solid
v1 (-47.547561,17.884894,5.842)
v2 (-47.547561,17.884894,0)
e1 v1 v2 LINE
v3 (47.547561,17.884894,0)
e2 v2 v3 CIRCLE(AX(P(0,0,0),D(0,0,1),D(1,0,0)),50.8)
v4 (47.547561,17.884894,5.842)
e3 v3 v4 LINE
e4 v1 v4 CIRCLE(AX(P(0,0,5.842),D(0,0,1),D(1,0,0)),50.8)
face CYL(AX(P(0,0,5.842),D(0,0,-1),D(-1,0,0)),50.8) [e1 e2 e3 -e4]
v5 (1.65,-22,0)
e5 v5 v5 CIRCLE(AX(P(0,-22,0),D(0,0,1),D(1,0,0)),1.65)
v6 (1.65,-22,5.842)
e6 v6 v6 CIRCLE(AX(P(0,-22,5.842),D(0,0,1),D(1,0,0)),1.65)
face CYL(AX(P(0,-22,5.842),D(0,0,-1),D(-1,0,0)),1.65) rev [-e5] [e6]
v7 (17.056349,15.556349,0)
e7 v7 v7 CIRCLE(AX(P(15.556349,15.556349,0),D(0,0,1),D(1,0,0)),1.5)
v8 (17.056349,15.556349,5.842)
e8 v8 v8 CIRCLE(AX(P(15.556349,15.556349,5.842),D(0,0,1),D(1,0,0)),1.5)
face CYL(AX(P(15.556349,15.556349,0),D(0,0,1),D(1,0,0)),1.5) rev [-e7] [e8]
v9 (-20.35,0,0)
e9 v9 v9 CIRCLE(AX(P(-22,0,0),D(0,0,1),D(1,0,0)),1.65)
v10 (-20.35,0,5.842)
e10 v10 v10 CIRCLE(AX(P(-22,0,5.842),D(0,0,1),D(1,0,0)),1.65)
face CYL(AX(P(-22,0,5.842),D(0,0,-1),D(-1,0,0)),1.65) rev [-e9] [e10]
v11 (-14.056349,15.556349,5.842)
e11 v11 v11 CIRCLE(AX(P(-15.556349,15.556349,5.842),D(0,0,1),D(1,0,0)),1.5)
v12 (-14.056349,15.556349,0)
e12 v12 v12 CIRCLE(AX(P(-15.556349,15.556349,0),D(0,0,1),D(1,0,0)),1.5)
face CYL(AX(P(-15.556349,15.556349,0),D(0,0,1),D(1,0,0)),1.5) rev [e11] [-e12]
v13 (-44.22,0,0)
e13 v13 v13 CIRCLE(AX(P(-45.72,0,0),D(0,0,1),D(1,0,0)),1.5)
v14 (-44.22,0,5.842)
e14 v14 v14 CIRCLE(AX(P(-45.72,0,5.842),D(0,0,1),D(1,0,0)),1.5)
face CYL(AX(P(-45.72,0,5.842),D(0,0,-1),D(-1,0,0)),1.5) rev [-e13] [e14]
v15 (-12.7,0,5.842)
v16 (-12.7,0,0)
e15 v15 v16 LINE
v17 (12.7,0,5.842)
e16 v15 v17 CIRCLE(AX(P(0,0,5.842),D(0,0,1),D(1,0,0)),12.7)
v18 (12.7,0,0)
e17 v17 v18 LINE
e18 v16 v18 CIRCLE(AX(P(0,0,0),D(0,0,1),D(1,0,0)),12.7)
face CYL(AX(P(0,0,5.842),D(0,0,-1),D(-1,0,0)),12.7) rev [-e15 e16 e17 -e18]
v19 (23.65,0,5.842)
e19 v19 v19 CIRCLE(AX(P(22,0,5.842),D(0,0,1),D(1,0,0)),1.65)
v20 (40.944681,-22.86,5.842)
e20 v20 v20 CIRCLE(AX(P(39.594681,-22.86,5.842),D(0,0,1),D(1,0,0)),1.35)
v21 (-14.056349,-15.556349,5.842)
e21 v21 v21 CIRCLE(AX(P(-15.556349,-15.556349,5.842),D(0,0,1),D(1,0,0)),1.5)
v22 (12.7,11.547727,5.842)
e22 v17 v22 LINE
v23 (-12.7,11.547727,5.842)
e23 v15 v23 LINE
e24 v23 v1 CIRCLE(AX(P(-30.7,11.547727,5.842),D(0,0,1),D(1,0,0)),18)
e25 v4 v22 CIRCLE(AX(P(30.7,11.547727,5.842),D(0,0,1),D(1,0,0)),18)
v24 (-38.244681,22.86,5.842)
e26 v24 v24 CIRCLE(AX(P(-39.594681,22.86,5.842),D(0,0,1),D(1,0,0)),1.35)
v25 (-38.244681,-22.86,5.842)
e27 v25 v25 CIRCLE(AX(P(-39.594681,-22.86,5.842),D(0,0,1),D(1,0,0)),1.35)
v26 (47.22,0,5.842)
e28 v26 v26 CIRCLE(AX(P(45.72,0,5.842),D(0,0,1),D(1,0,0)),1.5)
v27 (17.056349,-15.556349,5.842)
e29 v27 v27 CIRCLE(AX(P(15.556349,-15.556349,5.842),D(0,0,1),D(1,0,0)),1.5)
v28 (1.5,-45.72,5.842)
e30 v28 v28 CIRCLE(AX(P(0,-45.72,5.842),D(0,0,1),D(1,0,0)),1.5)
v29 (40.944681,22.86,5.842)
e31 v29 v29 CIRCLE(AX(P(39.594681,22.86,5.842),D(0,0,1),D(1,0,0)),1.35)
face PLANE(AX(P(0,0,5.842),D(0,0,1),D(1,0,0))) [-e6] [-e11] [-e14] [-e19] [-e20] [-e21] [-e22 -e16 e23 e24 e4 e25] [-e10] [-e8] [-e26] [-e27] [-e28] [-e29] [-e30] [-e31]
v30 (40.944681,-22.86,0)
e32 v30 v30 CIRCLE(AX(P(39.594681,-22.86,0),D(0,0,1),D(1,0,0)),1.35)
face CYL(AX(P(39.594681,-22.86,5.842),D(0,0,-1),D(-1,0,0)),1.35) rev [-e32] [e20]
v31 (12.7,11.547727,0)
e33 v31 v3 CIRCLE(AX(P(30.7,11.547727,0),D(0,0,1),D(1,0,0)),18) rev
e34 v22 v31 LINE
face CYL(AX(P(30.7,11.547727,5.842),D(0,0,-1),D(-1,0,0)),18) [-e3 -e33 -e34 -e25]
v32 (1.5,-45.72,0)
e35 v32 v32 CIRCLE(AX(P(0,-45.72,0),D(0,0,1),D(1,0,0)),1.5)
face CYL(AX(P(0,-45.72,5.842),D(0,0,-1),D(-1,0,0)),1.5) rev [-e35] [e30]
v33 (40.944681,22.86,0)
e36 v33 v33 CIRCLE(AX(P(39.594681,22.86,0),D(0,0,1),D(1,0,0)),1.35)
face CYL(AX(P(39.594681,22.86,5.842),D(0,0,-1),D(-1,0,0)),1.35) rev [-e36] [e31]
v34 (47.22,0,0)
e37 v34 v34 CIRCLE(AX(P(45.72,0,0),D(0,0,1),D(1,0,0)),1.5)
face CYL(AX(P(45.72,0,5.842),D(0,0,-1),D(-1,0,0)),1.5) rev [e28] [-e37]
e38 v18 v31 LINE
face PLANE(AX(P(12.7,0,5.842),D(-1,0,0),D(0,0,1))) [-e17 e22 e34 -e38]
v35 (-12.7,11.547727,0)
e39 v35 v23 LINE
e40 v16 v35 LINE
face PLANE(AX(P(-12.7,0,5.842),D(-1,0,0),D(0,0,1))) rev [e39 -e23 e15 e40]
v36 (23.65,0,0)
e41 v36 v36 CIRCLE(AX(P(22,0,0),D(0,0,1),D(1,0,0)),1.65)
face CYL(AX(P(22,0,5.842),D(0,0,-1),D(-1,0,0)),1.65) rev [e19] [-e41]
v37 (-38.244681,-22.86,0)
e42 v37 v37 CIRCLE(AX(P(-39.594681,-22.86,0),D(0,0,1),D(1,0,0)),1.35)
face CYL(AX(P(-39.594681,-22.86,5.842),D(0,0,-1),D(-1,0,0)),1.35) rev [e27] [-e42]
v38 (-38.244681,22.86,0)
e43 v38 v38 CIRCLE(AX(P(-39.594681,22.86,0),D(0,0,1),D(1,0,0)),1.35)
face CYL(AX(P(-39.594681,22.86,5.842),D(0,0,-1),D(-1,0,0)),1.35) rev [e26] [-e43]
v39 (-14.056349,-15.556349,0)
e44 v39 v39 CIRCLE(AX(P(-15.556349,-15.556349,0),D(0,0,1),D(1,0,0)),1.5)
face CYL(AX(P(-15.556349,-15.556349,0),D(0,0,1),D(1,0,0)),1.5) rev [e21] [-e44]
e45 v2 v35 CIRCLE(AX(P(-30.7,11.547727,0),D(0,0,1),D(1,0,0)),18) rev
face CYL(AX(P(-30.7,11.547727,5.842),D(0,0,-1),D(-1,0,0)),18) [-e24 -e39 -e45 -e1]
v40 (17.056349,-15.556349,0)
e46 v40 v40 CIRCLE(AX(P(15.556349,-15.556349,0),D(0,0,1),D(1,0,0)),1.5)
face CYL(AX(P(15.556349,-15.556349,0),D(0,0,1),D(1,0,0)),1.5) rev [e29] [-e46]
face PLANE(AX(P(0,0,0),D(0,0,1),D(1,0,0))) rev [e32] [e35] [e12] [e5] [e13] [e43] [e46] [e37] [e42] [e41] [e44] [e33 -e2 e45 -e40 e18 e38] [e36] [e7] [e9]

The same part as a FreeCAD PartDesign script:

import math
import FreeCAD as App
import Part
import Sketcher
Q = App.Units.Quantity


def edges_at(feature, points):
    """Names of the edges that pass closest to the given points."""
    edges = feature.Shape.Edges
    near = lambda p: min(range(len(edges)), key=lambda i: edges[i].distToShape(Part.Vertex(*p))[0])
    return sorted({f"Edge{near(p) + 1}" for p in points})

doc = App.newDocument("Part")
body = doc.addObject("PartDesign::Body", "Body")

# Sketch on XY plane
sketch1 = body.newObject("Sketcher::SketchObject", "Sketch")
sketch1.AttachmentSupport = (doc.getObject("XY_Plane"), [""])
sketch1.MapMode = "FlatFace"
sketch1.addGeometry([
    Part.LineSegment(App.Vector(-12.7, 0, 0), App.Vector(-12.7, 49.2, 0)),  # 0
    Part.ArcOfCircle(Part.Circle(App.Vector(0, 0, 0), App.Vector(0, 0, 1), 50.8), math.radians(104), math.radians(436)),  # 1
    Part.LineSegment(App.Vector(12.7, 49.2, 0), App.Vector(12.7, 0, 0)),  # 2
    Part.ArcOfCircle(Part.Circle(App.Vector(0, 0, 0), App.Vector(0, 0, 1), 12.7), math.radians(180), math.radians(360)),  # 3
    Part.Circle(App.Vector(0, -45.7, 0), App.Vector(0, 0, 1), 1.5),  # 4
    Part.Circle(App.Vector(-39.6, -22.9, 0), App.Vector(0, 0, 1), 1.4),  # 5
    Part.Circle(App.Vector(0, -22, 0), App.Vector(0, 0, 1), 1.6),  # 6
    Part.Circle(App.Vector(39.6, -22.9, 0), App.Vector(0, 0, 1), 1.4),  # 7
    Part.Circle(App.Vector(-45.7, 0, 0), App.Vector(0, 0, 1), 1.5),  # 8
    Part.Circle(App.Vector(-22, 0, 0), App.Vector(0, 0, 1), 1.6),  # 9
    Part.Circle(App.Vector(-39.6, 22.9, 0), App.Vector(0, 0, 1), 1.4),  # 10
    Part.Circle(App.Vector(22, 0, 0), App.Vector(0, 0, 1), 1.6),  # 11
    Part.Circle(App.Vector(45.7, 0, 0), App.Vector(0, 0, 1), 1.5),  # 12
    Part.Circle(App.Vector(39.6, 22.9, 0), App.Vector(0, 0, 1), 1.4),  # 13
], False)
sketch1.addConstraint([
    Sketcher.Constraint("Coincident", 0, 2, 1, 1),
    Sketcher.Constraint("Coincident", 1, 2, 2, 1),
    Sketcher.Constraint("Tangent", 2, 2, 3, 2),
    Sketcher.Constraint("Tangent", 3, 1, 0, 1),
    Sketcher.Constraint("Vertical", 0),
    Sketcher.Constraint("Vertical", 2),
    Sketcher.Constraint("Coincident", 1, 3, -1, 1),
    Sketcher.Constraint("Coincident", 3, 3, -1, 1),
    Sketcher.Constraint("Equal", 5, 7),
    Sketcher.Constraint("Equal", 4, 8),
    Sketcher.Constraint("Equal", 6, 9),
    Sketcher.Constraint("Equal", 7, 10),
    Sketcher.Constraint("Equal", 9, 11),
    Sketcher.Constraint("Equal", 8, 12),
    Sketcher.Constraint("Equal", 10, 13),
    Sketcher.Constraint("Symmetric", 7, 3, 10, 3, -1, 1),
    Sketcher.Constraint("Symmetric", 9, 3, 11, 3, -1, 1),
    Sketcher.Constraint("Symmetric", 8, 3, 12, 3, -1, 1),
    Sketcher.Constraint("Symmetric", 5, 3, 13, 3, -1, 1),
    Sketcher.Constraint("Symmetric", 5, 3, 7, 3, -2),
    Sketcher.Constraint("PointOnObject", 4, 3, -2),
    Sketcher.Constraint("PointOnObject", 6, 3, -2),
    Sketcher.Constraint("PointOnObject", 8, 3, -1),
    Sketcher.Constraint("PointOnObject", 9, 3, -1),
    Sketcher.Constraint("Diameter", 4, Q("3 mm")),
    Sketcher.Constraint("Diameter", 5, Q("2.7 mm")),
    Sketcher.Constraint("Diameter", 6, Q("3.3 mm")),
    Sketcher.Constraint("Radius", 1, Q("50.8 mm")),
    Sketcher.Constraint("Radius", 3, Q("12.7 mm")),
    Sketcher.Constraint("DistanceY", 6, 3, -1, 1, Q("22 mm")),
    Sketcher.Constraint("DistanceX", 9, 3, -1, 1, Q("22 mm")),
    Sketcher.Constraint("DistanceY", 4, 3, -1, 1, Q("45.72 mm")),
    Sketcher.Constraint("DistanceY", 5, 3, -1, 1, Q("22.86 mm")),
    Sketcher.Constraint("DistanceX", 8, 3, -1, 1, Q("45.72 mm")),
    Sketcher.Constraint("DistanceX", 5, 3, -1, 1, Q("39.594681 mm")),
])
pad1 = body.newObject("PartDesign::Pad", "Pad")
pad1.Profile = sketch1
pad1.Length = 5.842
doc.recompute()

fillet = body.newObject("PartDesign::Fillet", "Fillet")
fillet.Base = (pad1, edges_at(pad1, [(12.7, 49.187, 2.921), (-12.7, 49.187, 2.921)]))
fillet.Radius = 18

# Sketch on XY plane
sketch2 = body.newObject("Sketcher::SketchObject", "Sketch001")
sketch2.AttachmentSupport = (doc.getObject("XY_Plane"), [""])
sketch2.MapMode = "FlatFace"
sketch2.AttachmentOffset = App.Placement(App.Vector(0, 0, 5.842), App.Rotation())
sketch2.addGeometry([
    Part.Circle(App.Vector(-15.6, -15.6, 0), App.Vector(0, 0, 1), 1.5),
    Part.Circle(App.Vector(-15.6, 15.6, 0), App.Vector(0, 0, 1), 1.5),
    Part.Circle(App.Vector(15.6, 15.6, 0), App.Vector(0, 0, 1), 1.5),
    Part.Circle(App.Vector(15.6, -15.6, 0), App.Vector(0, 0, 1), 1.5),
], False)
sketch2.addConstraint([
    Sketcher.Constraint("Equal", 0, 1),
    Sketcher.Constraint("Equal", 1, 2),
    Sketcher.Constraint("Equal", 2, 3),
    Sketcher.Constraint("Symmetric", 0, 3, 2, 3, -1, 1),
    Sketcher.Constraint("Symmetric", 1, 3, 3, 3, -1, 1),
    Sketcher.Constraint("Symmetric", 1, 3, 2, 3, -2),
    Sketcher.Constraint("Diameter", 0, Q("3 mm")),
    Sketcher.Constraint("DistanceY", 0, 3, 1, 3, Q("31.112698 mm")),
    Sketcher.Constraint("DistanceX", 1, 3, 2, 3, Q("31.112698 mm")),
])
pocket1 = body.newObject("PartDesign::Pocket", "Pocket")
pocket1.Profile = sketch2
pocket1.Type = "ThroughAll"

doc.recompute()
